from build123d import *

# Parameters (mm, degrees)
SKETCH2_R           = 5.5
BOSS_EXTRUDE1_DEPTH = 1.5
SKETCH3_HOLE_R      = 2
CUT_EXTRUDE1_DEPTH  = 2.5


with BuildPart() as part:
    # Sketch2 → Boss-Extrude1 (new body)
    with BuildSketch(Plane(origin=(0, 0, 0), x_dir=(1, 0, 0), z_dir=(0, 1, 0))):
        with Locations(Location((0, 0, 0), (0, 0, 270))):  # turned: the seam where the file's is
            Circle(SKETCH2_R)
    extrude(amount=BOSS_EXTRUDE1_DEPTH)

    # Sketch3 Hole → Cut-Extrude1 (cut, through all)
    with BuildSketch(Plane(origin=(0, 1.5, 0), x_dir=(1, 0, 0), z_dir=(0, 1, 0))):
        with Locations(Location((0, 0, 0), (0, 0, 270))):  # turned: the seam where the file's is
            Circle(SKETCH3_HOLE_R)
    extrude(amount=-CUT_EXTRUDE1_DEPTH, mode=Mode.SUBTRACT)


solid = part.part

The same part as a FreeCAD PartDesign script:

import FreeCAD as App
import Part
import Sketcher
from FreeCAD import Vector

doc = App.newDocument("Part")
body = doc.addObject("PartDesign::Body", "Body")

sketch1 = body.newObject("Sketcher::SketchObject", "Sketch")
sketch1.AttachmentSupport = (doc.getObject("XZ_Plane"), [""])
sketch1.MapMode = "FlatFace"
sketch1.addGeometry(Part.Circle(Vector(0, 0, 0), Vector(0, 0, 1), 6), False)
sketch1.addConstraint([
    Sketcher.Constraint("Coincident", 0, 3, -1, 1),
    Sketcher.Constraint("Diameter", 0, 11.0),
])
pad1 = body.newObject("PartDesign::Pad", "Pad")
pad1.Profile = sketch1
pad1.Length = 1.5
pad1.Reversed = True

sketch2 = body.newObject("Sketcher::SketchObject", "Sketch001")
sketch2.AttachmentSupport = (doc.getObject("XZ_Plane"), [""])
sketch2.MapMode = "FlatFace"
sketch2.AttachmentOffset = App.Placement(Vector(0, 0, -1.5), App.Rotation())
sketch2.addGeometry(Part.Circle(Vector(0, 0, 0), Vector(0, 0, 1), 2), False)
sketch2.addConstraint([
    Sketcher.Constraint("Coincident", 0, 3, -1, 1),
    Sketcher.Constraint("Diameter", 0, 4.0),
])
pocket1 = body.newObject("PartDesign::Pocket", "Pocket")
pocket1.Profile = sketch2
pocket1.Type = "ThroughAll"
pocket1.Reversed = True

doc.recompute()
